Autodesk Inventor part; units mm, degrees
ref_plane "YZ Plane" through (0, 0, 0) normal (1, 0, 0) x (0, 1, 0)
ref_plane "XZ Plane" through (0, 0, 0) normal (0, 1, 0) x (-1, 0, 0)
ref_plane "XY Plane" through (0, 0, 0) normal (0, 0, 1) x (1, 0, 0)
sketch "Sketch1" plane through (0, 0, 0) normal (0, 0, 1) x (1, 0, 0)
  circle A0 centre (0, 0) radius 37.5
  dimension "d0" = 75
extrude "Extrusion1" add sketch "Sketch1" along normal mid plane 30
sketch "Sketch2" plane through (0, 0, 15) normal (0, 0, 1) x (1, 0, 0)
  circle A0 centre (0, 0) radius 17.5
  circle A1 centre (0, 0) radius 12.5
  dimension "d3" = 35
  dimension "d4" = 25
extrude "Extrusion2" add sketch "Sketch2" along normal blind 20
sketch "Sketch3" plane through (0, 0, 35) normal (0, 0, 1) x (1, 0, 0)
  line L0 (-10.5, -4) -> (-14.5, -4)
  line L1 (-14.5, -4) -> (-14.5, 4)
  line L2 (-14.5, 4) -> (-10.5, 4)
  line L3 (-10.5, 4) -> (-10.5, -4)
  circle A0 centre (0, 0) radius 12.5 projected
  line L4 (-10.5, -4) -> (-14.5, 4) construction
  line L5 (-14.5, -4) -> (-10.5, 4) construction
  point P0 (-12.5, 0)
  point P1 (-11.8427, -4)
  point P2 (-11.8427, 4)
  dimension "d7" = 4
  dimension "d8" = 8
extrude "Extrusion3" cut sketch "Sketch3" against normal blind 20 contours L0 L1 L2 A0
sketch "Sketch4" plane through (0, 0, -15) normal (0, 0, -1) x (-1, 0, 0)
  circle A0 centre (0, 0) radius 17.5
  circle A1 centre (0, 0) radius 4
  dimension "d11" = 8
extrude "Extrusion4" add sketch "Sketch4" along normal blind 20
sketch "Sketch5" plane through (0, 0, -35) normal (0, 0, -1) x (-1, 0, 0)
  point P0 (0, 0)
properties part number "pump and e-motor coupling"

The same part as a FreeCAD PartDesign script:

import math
import FreeCAD as App
import Part
import Sketcher
from FreeCAD import Vector
Q = App.Units.Quantity

doc = App.newDocument("Part")
body = doc.addObject("PartDesign::Body", "Body")

# Sketch on XY plane
sketch1 = doc.addObject("Sketcher::SketchObject", "Sketch")
body.addObject(sketch1)
sketch1.AttachmentSupport = (doc.XY_Plane, [""])
sketch1.MapMode = "FlatFace"
sketch1.addGeometry(Part.Circle(Vector(0, 0, 0), Vector(0, 0, 1), 38), False)
sketch1.addConstraint([
    Sketcher.Constraint("Coincident", 0, 3, -1, 1),
    Sketcher.Constraint("Diameter", 0, Q("75 mm")),
])
pad1 = doc.addObject("PartDesign::Pad", "Pad")
body.addObject(pad1)
pad1.Profile = sketch1
pad1.Length = 30
pad1.Midplane = True

# Sketch on XY plane
sketch2 = doc.addObject("Sketcher::SketchObject", "Sketch001")
body.addObject(sketch2)
sketch2.AttachmentSupport = (doc.XY_Plane, [""])
sketch2.MapMode = "FlatFace"
sketch2.AttachmentOffset = App.Placement(Vector(0, 0, 15), App.Rotation())
sketch2.addGeometry([
    Part.Circle(Vector(0, 0, 0), Vector(0, 0, 1), 18),
    Part.Circle(Vector(0, 0, 0), Vector(0, 0, 1), 12),
], False)
sketch2.addConstraint([
    Sketcher.Constraint("Coincident", 0, 3, -1, 1),
    Sketcher.Constraint("Coincident", 1, 3, -1, 1),
    Sketcher.Constraint("Diameter", 0, Q("35 mm")),
    Sketcher.Constraint("Diameter", 1, Q("25 mm")),
])
pad2 = doc.addObject("PartDesign::Pad", "Pad001")
body.addObject(pad2)
pad2.Profile = sketch2
pad2.Length = 20

# Sketch on XY plane
sketch3 = doc.addObject("Sketcher::SketchObject", "Sketch002")
body.addObject(sketch3)
sketch3.AttachmentSupport = (doc.XY_Plane, [""])
sketch3.MapMode = "FlatFace"
sketch3.AttachmentOffset = App.Placement(Vector(0, 0, 35), App.Rotation())
sketch3.addGeometry([
    Part.LineSegment(Vector(-14.5, -4, 0), Vector(-11.8, -4, 0)),
    Part.ArcOfCircle(Part.Circle(Vector(0, 0, 0), Vector(0, 0, 1), 12.5), math.radians(161), math.radians(199)),
    Part.LineSegment(Vector(-11.8, 4, 0), Vector(-14.5, 4, 0)),
    Part.LineSegment(Vector(-14.5, 4, 0), Vector(-14.5, -4, 0)),
], False)
sketch3.addConstraint([
    Sketcher.Constraint("Coincident", 0, 2, 1, 2),
    Sketcher.Constraint("Coincident", 1, 1, 2, 1),
    Sketcher.Constraint("Coincident", 2, 2, 3, 1),
    Sketcher.Constraint("Coincident", 3, 2, 0, 1),
    Sketcher.Constraint("Horizontal", 0),
    Sketcher.Constraint("Horizontal", 2),
    Sketcher.Constraint("Vertical", 3),
    Sketcher.Constraint("Coincident", 1, 3, -1, 1),
    Sketcher.Constraint("Vertical", 0, 2, 1, 1),
    Sketcher.Constraint("DistanceY", 3, 2, 3, 1, Q("8 mm")),
    Sketcher.Constraint("Radius", 1, Q("12.5 mm")),
    Sketcher.Constraint("DistanceX", 2, 2, -1, 1, Q("14.5 mm")),
])
pocket1 = doc.addObject("PartDesign::Pocket", "Pocket")
body.addObject(pocket1)
pocket1.Profile = sketch3
pocket1.Length = 20

# Sketch on XY plane
sketch4 = doc.addObject("Sketcher::SketchObject", "Sketch003")
body.addObject(sketch4)
sketch4.AttachmentSupport = (doc.XY_Plane, [""])
sketch4.MapMode = "FlatFace"
sketch4.AttachmentOffset = App.Placement(Vector(0, 0, -15), App.Rotation())
sketch4.addGeometry([
    Part.Circle(Vector(0, 0, 0), Vector(0, 0, 1), 17.5),
    Part.Circle(Vector(0, 0, 0), Vector(0, 0, 1), 4),
], False)
sketch4.addConstraint([
    Sketcher.Constraint("Coincident", 0, 3, -1, 1),
    Sketcher.Constraint("Coincident", 1, 3, -1, 1),
    Sketcher.Constraint("Diameter", 1, Q("8 mm")),
    Sketcher.Constraint("Diameter", 0, Q("35 mm")),
])
pad3 = doc.addObject("PartDesign::Pad", "Pad002")
body.addObject(pad3)
pad3.Profile = sketch4
pad3.Length = 20
pad3.Reversed = True

doc.recompute()
